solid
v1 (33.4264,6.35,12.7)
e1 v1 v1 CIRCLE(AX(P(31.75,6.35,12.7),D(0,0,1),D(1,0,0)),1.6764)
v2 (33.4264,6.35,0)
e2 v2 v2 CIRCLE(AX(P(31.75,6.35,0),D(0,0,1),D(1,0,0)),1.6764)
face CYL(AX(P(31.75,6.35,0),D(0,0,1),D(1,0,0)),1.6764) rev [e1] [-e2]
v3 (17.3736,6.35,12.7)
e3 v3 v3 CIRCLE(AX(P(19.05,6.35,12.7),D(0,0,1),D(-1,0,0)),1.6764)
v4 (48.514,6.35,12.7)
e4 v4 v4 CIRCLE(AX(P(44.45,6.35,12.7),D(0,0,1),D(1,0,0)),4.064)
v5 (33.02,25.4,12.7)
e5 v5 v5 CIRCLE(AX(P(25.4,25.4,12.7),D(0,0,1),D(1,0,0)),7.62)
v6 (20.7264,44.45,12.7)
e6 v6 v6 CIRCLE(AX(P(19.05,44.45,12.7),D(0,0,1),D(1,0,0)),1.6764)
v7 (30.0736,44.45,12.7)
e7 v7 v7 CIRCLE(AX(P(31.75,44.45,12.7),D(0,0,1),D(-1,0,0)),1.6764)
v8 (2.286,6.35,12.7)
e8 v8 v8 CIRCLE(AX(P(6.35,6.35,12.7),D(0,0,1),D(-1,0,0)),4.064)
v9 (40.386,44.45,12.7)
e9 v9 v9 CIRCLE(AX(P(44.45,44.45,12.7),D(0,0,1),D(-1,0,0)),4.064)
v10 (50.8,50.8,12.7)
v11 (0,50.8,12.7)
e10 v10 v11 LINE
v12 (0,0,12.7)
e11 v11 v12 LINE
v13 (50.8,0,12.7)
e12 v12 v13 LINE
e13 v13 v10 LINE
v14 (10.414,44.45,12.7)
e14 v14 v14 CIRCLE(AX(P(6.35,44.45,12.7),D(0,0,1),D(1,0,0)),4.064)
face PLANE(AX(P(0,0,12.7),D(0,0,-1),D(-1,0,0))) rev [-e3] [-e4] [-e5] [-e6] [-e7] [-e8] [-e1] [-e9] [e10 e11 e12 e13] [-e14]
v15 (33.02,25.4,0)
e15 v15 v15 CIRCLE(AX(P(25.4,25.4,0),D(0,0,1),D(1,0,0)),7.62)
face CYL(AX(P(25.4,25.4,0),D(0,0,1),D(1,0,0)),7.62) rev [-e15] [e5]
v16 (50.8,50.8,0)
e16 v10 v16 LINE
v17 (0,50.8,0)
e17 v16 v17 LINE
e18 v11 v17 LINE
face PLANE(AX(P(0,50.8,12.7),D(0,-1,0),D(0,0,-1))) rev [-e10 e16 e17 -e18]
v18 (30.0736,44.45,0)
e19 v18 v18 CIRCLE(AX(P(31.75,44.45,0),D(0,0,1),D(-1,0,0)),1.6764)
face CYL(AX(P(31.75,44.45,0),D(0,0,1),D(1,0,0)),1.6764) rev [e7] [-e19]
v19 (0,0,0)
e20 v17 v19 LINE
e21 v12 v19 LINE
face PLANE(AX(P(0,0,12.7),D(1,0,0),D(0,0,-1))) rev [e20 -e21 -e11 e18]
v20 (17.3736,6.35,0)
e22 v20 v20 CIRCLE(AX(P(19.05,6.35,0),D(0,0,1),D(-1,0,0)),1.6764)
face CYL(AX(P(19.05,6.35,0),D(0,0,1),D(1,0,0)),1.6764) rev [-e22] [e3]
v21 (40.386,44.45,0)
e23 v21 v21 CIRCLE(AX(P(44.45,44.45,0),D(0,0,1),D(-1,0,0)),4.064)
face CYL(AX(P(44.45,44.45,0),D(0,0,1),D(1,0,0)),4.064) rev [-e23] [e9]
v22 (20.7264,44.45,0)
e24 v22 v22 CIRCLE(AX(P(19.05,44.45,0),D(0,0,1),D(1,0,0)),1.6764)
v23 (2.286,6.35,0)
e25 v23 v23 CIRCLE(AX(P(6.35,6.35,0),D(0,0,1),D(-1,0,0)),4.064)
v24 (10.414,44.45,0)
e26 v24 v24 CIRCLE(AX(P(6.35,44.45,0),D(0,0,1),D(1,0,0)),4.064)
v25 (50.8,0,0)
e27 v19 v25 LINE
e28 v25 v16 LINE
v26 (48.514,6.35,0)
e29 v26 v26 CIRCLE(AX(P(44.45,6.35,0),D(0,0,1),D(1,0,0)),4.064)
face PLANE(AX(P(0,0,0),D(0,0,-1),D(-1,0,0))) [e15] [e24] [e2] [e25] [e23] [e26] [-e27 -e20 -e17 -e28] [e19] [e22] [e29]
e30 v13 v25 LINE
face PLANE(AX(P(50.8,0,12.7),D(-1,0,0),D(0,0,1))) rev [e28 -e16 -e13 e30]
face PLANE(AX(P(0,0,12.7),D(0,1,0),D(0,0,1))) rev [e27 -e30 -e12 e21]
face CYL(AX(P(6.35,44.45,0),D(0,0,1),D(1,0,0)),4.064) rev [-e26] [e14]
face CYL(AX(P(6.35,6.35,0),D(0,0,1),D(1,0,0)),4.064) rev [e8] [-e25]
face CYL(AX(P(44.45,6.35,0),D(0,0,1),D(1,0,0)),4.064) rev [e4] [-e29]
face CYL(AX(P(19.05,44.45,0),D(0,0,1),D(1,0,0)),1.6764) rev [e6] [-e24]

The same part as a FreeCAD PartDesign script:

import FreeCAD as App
import Part
import Sketcher

V = App.Vector
Q = App.Units.Quantity

doc = App.newDocument("Part")
body = doc.addObject("PartDesign::Body", "Body")

sketch1 = body.newObject("Sketcher::SketchObject", "Sketch")
sketch1.AttachmentSupport = (doc.getObject("XY_Plane"), [""])
sketch1.MapMode = "FlatFace"
sketch1.addGeometry([
    Part.LineSegment(V(0, 51, 0), V(0, 0, 0)),
    Part.LineSegment(V(0, 0, 0), V(51, 0, 0)),
    Part.LineSegment(V(51, 0, 0), V(51, 51, 0)),
    Part.LineSegment(V(51, 51, 0), V(0, 51, 0)),
], False)
sketch1.addConstraint([
    Sketcher.Constraint("Coincident", 0, 2, 1, 1),
    Sketcher.Constraint("Coincident", 1, 2, 2, 1),
    Sketcher.Constraint("Coincident", 2, 2, 3, 1),
    Sketcher.Constraint("Coincident", 3, 2, 0, 1),
    Sketcher.Constraint("Vertical", 0),
    Sketcher.Constraint("Horizontal", 1),
    Sketcher.Constraint("Vertical", 2),
    Sketcher.Constraint("Horizontal", 3),
    Sketcher.Constraint("Coincident", 0, 2, -1, 1),
    Sketcher.Constraint("Equal", 3, 0),
    Sketcher.Constraint("DistanceX", 1, 1, 1, 2, Q("2 in")),
])
pad1 = body.newObject("PartDesign::Pad", "Pad")
pad1.Profile = sketch1
pad1.Length = Q("0.5 in")

sketch2 = body.newObject("Sketcher::SketchObject", "Sketch001")
sketch2.AttachmentSupport = (doc.getObject("XY_Plane"), [""])
sketch2.MapMode = "FlatFace"
sketch2.AttachmentOffset = App.Placement(V(0, 0, 0.5 * 25.4), App.Rotation())
sketch2.addGeometry(Part.Circle(V(25, 25, 0), V(0, 0, 1), 8), False)
sketch2.addConstraint([
    Sketcher.Constraint("Diameter", 0, Q("0.6 in")),
    Sketcher.Constraint("DistanceX", -1, 1, 0, 3, Q("1 in")),
    Sketcher.Constraint("DistanceY", -1, 1, 0, 3, Q("1 in")),
])
pocket1 = body.newObject("PartDesign::Pocket", "Pocket")
pocket1.Profile = sketch2
pocket1.Type = "ThroughAll"

sketch3 = body.newObject("Sketcher::SketchObject", "Sketch002")
sketch3.AttachmentSupport = (doc.getObject("XY_Plane"), [""])
sketch3.MapMode = "FlatFace"
sketch3.AttachmentOffset = App.Placement(V(0, 0, 0.5 * 25.4), App.Rotation())
sketch3.addGeometry([
    Part.Circle(V(6.3, 44.5, 0), V(0, 0, 1), 4.1),
    Part.Circle(V(6.3, 6.3, 0), V(0, 0, 1), 4.1),
    Part.Circle(V(44.5, 44.5, 0), V(0, 0, 1), 4.1),
    Part.Circle(V(44.5, 6.3, 0), V(0, 0, 1), 4.1),
], False)
sketch3.addConstraint([
    Sketcher.Constraint("Equal", 0, 1),
    Sketcher.Constraint("Equal", 1, 2),
    Sketcher.Constraint("Equal", 2, 3),
    Sketcher.Constraint("Horizontal", 0, 3, 2, 3),
    Sketcher.Constraint("Horizontal", 1, 3, 3, 3),
    Sketcher.Constraint("Vertical", 0, 3, 1, 3),
    Sketcher.Constraint("Vertical", 2, 3, 3, 3),
    Sketcher.Constraint("Diameter", 0, Q("0.32 in")),
    Sketcher.Constraint("DistanceY", 1, 3, 0, 3, Q("1.5 in")),
    Sketcher.Constraint("DistanceX", 0, 3, 2, 3, Q("1.5 in")),
    Sketcher.Constraint("DistanceX", -1, 1, 0, 3, Q("0.25 in")),
    Sketcher.Constraint("DistanceY", -1, 1, 0, 3, Q("1.75 in")),
])
pocket2 = body.newObject("PartDesign::Pocket", "Pocket001")
pocket2.Profile = sketch3
pocket2.Type = "ThroughAll"

sketch4 = body.newObject("Sketcher::SketchObject", "Sketch003")
sketch4.AttachmentSupport = (doc.getObject("XY_Plane"), [""])
sketch4.MapMode = "FlatFace"
sketch4.AttachmentOffset = App.Placement(V(0, 0, 0.5 * 25.4), App.Rotation())
sketch4.addGeometry([
    Part.Circle(V(19.1, 44.5, 0), V(0, 0, 1), 1.7),
    Part.Circle(V(31.8, 44.5, 0), V(0, 0, 1), 1.7),
    Part.Circle(V(19.1, 6.3, 0), V(0, 0, 1), 1.7),
    Part.Circle(V(31.8, 6.3, 0), V(0, 0, 1), 1.7),
], False)
sketch4.addConstraint([
    Sketcher.Constraint("Equal", 0, 1),
    Sketcher.Constraint("Equal", 1, 2),
    Sketcher.Constraint("Equal", 2, 3),
    Sketcher.Constraint("Horizontal", 0, 3, 1, 3),
    Sketcher.Constraint("Horizontal", 2, 3, 3, 3),
    Sketcher.Constraint("Vertical", 0, 3, 2, 3),
    Sketcher.Constraint("Vertical", 1, 3, 3, 3),
    Sketcher.Constraint("Diameter", 0, Q("0.132 in")),
    Sketcher.Constraint("DistanceX", 0, 3, 1, 3, Q("0.5 in")),
    Sketcher.Constraint("DistanceY", 2, 3, 0, 3, Q("1.5 in")),
    Sketcher.Constraint("DistanceX", -1, 1, 0, 3, Q("0.75 in")),
    Sketcher.Constraint("DistanceY", -1, 1, 0, 3, Q("1.75 in")),
])
pocket3 = body.newObject("PartDesign::Pocket", "Pocket002")
pocket3.Profile = sketch4
pocket3.Type = "ThroughAll"

doc.recompute()
